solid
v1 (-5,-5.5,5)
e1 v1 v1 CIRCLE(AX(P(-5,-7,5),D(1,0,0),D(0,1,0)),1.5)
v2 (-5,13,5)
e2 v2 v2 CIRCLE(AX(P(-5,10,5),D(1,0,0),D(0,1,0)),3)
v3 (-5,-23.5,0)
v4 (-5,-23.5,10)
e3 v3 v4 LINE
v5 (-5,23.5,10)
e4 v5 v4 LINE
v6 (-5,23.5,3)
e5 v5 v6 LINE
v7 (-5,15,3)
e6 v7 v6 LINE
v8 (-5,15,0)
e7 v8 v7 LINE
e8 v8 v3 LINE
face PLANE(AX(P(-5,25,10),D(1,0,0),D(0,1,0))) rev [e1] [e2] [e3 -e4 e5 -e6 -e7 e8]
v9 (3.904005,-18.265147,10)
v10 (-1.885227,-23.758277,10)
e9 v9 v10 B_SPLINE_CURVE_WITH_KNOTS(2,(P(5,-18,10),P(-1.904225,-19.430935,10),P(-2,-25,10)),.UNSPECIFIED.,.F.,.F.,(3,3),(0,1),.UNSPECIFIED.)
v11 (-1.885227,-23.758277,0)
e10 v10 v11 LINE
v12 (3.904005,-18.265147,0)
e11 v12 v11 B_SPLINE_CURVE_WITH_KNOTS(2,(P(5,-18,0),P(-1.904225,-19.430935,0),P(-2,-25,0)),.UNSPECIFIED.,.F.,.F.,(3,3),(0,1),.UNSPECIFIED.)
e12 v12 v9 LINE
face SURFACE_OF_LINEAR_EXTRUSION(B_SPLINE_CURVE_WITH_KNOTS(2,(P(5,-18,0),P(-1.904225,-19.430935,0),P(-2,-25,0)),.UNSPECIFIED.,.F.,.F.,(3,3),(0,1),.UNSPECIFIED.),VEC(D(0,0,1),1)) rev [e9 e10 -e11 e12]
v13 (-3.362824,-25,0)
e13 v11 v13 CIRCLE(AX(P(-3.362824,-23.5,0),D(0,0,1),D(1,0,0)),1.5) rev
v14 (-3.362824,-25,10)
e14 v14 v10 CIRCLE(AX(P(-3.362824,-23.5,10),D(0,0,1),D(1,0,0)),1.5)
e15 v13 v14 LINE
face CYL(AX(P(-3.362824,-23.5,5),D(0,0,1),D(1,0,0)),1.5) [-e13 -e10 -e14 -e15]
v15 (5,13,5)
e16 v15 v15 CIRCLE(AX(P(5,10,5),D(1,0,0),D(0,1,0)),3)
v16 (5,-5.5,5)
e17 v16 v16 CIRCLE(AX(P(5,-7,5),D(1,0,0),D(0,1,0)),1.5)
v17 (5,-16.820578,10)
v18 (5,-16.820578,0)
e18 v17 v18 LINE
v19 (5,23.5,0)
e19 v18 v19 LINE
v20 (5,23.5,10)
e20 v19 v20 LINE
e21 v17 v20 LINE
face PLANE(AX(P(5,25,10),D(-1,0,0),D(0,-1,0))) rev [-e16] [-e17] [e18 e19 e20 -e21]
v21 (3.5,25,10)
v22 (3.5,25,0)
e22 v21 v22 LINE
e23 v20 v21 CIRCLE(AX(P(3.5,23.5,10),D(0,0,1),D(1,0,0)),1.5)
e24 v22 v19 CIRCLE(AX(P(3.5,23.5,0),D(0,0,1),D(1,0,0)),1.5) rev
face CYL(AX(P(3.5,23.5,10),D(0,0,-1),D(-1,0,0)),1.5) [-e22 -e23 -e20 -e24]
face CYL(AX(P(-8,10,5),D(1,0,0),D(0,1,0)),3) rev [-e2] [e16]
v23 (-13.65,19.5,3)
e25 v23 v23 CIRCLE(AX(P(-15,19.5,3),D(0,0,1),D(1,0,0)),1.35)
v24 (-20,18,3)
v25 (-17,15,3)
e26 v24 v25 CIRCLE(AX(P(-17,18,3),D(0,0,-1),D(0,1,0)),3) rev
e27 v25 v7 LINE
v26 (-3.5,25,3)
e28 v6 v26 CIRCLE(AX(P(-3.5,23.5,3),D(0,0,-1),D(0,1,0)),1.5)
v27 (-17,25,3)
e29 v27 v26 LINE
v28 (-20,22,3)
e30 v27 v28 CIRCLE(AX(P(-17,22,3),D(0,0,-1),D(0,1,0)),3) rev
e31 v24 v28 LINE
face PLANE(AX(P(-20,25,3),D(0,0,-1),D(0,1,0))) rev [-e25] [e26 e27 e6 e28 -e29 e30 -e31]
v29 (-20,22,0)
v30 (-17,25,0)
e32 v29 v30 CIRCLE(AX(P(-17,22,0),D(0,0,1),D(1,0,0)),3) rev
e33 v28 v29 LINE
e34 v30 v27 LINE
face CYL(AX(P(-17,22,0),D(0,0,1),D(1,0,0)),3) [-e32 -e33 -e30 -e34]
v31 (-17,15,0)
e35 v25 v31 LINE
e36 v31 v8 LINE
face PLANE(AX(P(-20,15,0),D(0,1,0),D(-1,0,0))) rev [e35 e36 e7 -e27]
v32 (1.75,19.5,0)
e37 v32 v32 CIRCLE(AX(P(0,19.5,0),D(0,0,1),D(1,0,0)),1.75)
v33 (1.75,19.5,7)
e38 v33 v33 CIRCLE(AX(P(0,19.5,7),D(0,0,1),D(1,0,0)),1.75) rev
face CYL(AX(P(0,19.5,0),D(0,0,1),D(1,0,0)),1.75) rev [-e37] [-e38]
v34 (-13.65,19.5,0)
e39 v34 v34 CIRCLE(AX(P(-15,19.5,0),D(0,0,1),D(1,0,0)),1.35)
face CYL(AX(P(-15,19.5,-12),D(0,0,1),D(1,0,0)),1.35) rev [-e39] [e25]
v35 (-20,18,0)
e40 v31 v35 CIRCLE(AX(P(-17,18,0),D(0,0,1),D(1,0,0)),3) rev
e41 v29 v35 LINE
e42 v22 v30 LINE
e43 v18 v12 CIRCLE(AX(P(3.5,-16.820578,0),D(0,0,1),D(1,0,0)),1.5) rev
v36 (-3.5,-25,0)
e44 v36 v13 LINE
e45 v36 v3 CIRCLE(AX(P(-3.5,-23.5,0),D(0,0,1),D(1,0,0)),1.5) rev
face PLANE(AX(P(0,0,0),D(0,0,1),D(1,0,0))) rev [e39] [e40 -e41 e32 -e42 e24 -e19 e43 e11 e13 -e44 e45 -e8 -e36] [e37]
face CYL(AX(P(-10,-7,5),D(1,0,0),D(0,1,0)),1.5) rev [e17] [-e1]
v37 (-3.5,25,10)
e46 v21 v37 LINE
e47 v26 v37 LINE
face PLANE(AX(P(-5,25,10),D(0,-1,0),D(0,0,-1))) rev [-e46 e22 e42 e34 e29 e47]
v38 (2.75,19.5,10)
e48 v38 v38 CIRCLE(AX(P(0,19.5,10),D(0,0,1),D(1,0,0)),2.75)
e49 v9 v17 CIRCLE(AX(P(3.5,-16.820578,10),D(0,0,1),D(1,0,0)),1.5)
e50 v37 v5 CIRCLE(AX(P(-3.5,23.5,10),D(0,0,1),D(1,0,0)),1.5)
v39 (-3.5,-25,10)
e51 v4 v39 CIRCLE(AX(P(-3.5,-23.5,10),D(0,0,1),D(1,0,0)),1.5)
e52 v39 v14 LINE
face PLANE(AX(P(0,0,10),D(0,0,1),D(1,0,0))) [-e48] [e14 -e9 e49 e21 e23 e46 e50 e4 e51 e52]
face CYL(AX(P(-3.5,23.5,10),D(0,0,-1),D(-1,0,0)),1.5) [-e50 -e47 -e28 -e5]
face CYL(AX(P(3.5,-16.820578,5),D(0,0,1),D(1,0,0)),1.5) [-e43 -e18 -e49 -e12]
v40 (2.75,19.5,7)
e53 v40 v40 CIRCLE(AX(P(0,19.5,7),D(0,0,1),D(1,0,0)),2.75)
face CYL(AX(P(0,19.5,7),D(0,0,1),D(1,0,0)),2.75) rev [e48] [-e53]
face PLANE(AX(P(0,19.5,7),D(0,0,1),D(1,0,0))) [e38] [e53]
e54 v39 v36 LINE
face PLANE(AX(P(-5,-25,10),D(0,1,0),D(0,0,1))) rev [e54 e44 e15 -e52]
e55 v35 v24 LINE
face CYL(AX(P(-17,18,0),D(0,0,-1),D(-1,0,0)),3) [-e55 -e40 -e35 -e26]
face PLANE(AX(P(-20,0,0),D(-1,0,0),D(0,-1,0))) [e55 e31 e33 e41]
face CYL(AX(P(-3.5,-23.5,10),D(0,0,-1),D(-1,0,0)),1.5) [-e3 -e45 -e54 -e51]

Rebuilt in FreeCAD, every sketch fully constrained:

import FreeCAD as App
import Part
import Sketcher
Q = App.Units.Quantity


def edges_at(feature, points):
    """Names of the edges that pass closest to the given points."""
    edges = feature.Shape.Edges
    near = lambda p: min(range(len(edges)), key=lambda i: edges[i].distToShape(Part.Vertex(*p))[0])
    return sorted({f"Edge{near(p) + 1}" for p in points})

doc = App.newDocument("Part")
body = doc.addObject("PartDesign::Body", "Body")

sketch1 = doc.addObject("Sketcher::SketchObject", "Sketch")
body.addObject(sketch1)
sketch1.AttachmentSupport = (doc.XY_Plane, [""])
sketch1.MapMode = "FlatFace"
sketch1.addGeometry([
    Part.LineSegment(App.Vector(-5, 25, 0), App.Vector(-5, -25, 0)),
    Part.LineSegment(App.Vector(-5, -25, 0), App.Vector(5, -25, 0)),
    Part.LineSegment(App.Vector(5, -25, 0), App.Vector(5, 25, 0)),
    Part.LineSegment(App.Vector(5, 25, 0), App.Vector(-5, 25, 0)),
], False)
sketch1.addConstraint([
    Sketcher.Constraint("Coincident", 0, 2, 1, 1),
    Sketcher.Constraint("Coincident", 1, 2, 2, 1),
    Sketcher.Constraint("Coincident", 2, 2, 3, 1),
    Sketcher.Constraint("Coincident", 3, 2, 0, 1),
    Sketcher.Constraint("Vertical", 0),
    Sketcher.Constraint("Horizontal", 1),
    Sketcher.Constraint("Vertical", 2),
    Sketcher.Constraint("Horizontal", 3),
    Sketcher.Constraint("Symmetric", 0, 2, 2, 2, -1, 1),
    Sketcher.Constraint("DistanceX", 1, 1, 1, 2, Q("10 mm")),
    Sketcher.Constraint("DistanceY", 0, 2, 0, 1, Q("50 mm")),
])
pad1 = doc.addObject("PartDesign::Pad", "Pad")
body.addObject(pad1)
pad1.Profile = sketch1
pad1.Length = 10

sketch2 = doc.addObject("Sketcher::SketchObject", "Sketch001")
body.addObject(sketch2)
sketch2.AttachmentSupport = (doc.XY_Plane, [""])
sketch2.MapMode = "FlatFace"
sketch2.AttachmentOffset = App.Placement(App.Vector(0, 0, 10), App.Rotation())
sketch2.addGeometry(Part.Circle(App.Vector(0, 19.5, 0), App.Vector(0, 0, 1), 1.8), False)
sketch2.addConstraint([
    Sketcher.Constraint("PointOnObject", 0, 3, -2),
    Sketcher.Constraint("Diameter", 0, Q("3.5 mm")),
    Sketcher.Constraint("DistanceY", -1, 1, 0, 3, Q("19.5 mm")),
])
pocket1 = doc.addObject("PartDesign::Pocket", "Pocket")
body.addObject(pocket1)
pocket1.Profile = sketch2
pocket1.Length = 10

sketch3 = doc.addObject("Sketcher::SketchObject", "Sketch002")
body.addObject(sketch3)
sketch3.AttachmentSupport = (doc.XY_Plane, [""])
sketch3.MapMode = "FlatFace"
sketch3.AttachmentOffset = App.Placement(App.Vector(0, 0, 10), App.Rotation())
sketch3.addGeometry([
    Part.LineSegment(App.Vector(5, -25, 0), App.Vector(5, -18, 0)),
    Part.BSplineCurve([App.Vector(-2, -25, 0), App.Vector(-1.904225, -19.430935, 0), App.Vector(5, -18, 0)], [3, 3], [0, 1], False, 2, [1, 1, 1], False),
    Part.LineSegment(App.Vector(-2, -25, 0), App.Vector(5, -25, 0)),
], False)
sketch3.addConstraint([
    Sketcher.Constraint("Block", 1),
    Sketcher.Constraint("Coincident", 0, 2, 1, 2),
    Sketcher.Constraint("Coincident", 1, 1, 2, 1),
    Sketcher.Constraint("Coincident", 2, 2, 0, 1),
    Sketcher.Constraint("Vertical", 0),
    Sketcher.Constraint("Horizontal", 2),
])
pocket2 = doc.addObject("PartDesign::Pocket", "Pocket001")
body.addObject(pocket2)
pocket2.Profile = sketch3
pocket2.Length = 10
doc.recompute()

fillet = doc.addObject("PartDesign::Fillet", "Fillet")
body.addObject(fillet)
fillet.Base = (pocket2, edges_at(pocket2, [
    (5, -18, 5),
    (-2, -25, 5),
    (-5, -25, 5),
    (5, 25, 5),
]))
fillet.Radius = 1.5

sketch4 = doc.addObject("Sketcher::SketchObject", "Sketch003")
body.addObject(sketch4)
sketch4.AttachmentSupport = (doc.XY_Plane, [""])
sketch4.MapMode = "FlatFace"
sketch4.AttachmentOffset = App.Placement(App.Vector(0, 0, 10), App.Rotation())
sketch4.addGeometry(Part.Circle(App.Vector(0, 19.5, 0), App.Vector(0, 0, 1), 2.8), False)
sketch4.addConstraint([
    Sketcher.Constraint("PointOnObject", 0, 3, -2),
    Sketcher.Constraint("Diameter", 0, Q("5.5 mm")),
    Sketcher.Constraint("DistanceY", -1, 1, 0, 3, Q("19.5 mm")),
])
pocket3 = doc.addObject("PartDesign::Pocket", "Pocket002")
body.addObject(pocket3)
pocket3.Profile = sketch4
pocket3.Length = 3

sketch5 = doc.addObject("Sketcher::SketchObject", "Sketch004")
body.addObject(sketch5)
sketch5.AttachmentSupport = (doc.YZ_Plane, [""])
sketch5.MapMode = "FlatFace"
sketch5.AttachmentOffset = App.Placement(App.Vector(0, 0, 5), App.Rotation())
sketch5.addGeometry(Part.Circle(App.Vector(10, 5, 0), App.Vector(0, 0, 1), 3), False)
sketch5.addConstraint([
    Sketcher.Constraint("Diameter", 0, Q("6 mm")),
    Sketcher.Constraint("DistanceX", -1, 1, 0, 3, Q("10 mm")),
    Sketcher.Constraint("DistanceY", -1, 1, 0, 3, Q("5 mm")),
])
pocket4 = doc.addObject("PartDesign::Pocket", "Pocket003")
body.addObject(pocket4)
pocket4.Profile = sketch5
pocket4.Length = 13

sketch6 = doc.addObject("Sketcher::SketchObject", "Sketch005")
body.addObject(sketch6)
sketch6.AttachmentSupport = (doc.YZ_Plane, [""])
sketch6.MapMode = "FlatFace"
sketch6.AttachmentOffset = App.Placement(App.Vector(0, 0, -5), App.Rotation())
sketch6.addGeometry([
    Part.LineSegment(App.Vector(25, 0, 0), App.Vector(15, 0, 0)),
    Part.LineSegment(App.Vector(15, 0, 0), App.Vector(15, 3, 0)),
    Part.LineSegment(App.Vector(15, 3, 0), App.Vector(25, 3, 0)),
    Part.LineSegment(App.Vector(25, 3, 0), App.Vector(25, 0, 0)),
], False)
sketch6.addConstraint([
    Sketcher.Constraint("Coincident", 0, 2, 1, 1),
    Sketcher.Constraint("Coincident", 1, 2, 2, 1),
    Sketcher.Constraint("Coincident", 2, 2, 3, 1),
    Sketcher.Constraint("Coincident", 3, 2, 0, 1),
    Sketcher.Constraint("Horizontal", 0),
    Sketcher.Constraint("Vertical", 1),
    Sketcher.Constraint("Horizontal", 2),
    Sketcher.Constraint("Vertical", 3),
    Sketcher.Constraint("PointOnObject", 0, 2, -1),
    Sketcher.Constraint("DistanceX", 0, 2, 0, 1, Q("10 mm")),
    Sketcher.Constraint("DistanceY", 1, 1, 1, 2, Q("3 mm")),
    Sketcher.Constraint("DistanceX", -1, 1, 0, 2, Q("15 mm")),
])
pad2 = doc.addObject("PartDesign::Pad", "Pad001")
body.addObject(pad2)
pad2.Profile = sketch6
pad2.Length = 15
pad2.Reversed = True
doc.recompute()

fillet2 = doc.addObject("PartDesign::Fillet", "Fillet001")
body.addObject(fillet2)
fillet2.Base = (pad2, edges_at(pad2, [(-20, 15, 1.5), (-20, 25, 1.5)]))
fillet2.Radius = 3
doc.recompute()

fillet3 = doc.addObject("PartDesign::Fillet", "Fillet002")
body.addObject(fillet3)
fillet3.Base = (fillet2, edges_at(fillet2, [(-5, 25, 6.5)]))
fillet3.Radius = 1.5

sketch7 = doc.addObject("Sketcher::SketchObject", "Sketch006")
body.addObject(sketch7)
sketch7.AttachmentSupport = (doc.XY_Plane, [""])
sketch7.MapMode = "FlatFace"
sketch7.AttachmentOffset = App.Placement(App.Vector(0, 0, 3), App.Rotation())
sketch7.addGeometry(Part.Circle(App.Vector(-15, 19.5, 0), App.Vector(0, 0, 1), 1.4), False)
sketch7.addConstraint([
    Sketcher.Constraint("Diameter", 0, Q("2.7 mm")),
    Sketcher.Constraint("DistanceX", 0, 3, -1, 1, Q("15 mm")),
    Sketcher.Constraint("DistanceY", -1, 1, 0, 3, Q("19.5 mm")),
])
pocket5 = doc.addObject("PartDesign::Pocket", "Pocket004")
body.addObject(pocket5)
pocket5.Profile = sketch7
pocket5.Length = 15

sketch8 = doc.addObject("Sketcher::SketchObject", "Sketch007")
body.addObject(sketch8)
sketch8.AttachmentSupport = (doc.YZ_Plane, [""])
sketch8.MapMode = "FlatFace"
sketch8.AttachmentOffset = App.Placement(App.Vector(0, 0, 5), App.Rotation())
sketch8.addGeometry(Part.Circle(App.Vector(-7, 5, 0), App.Vector(0, 0, 1), 1.5), False)
sketch8.addConstraint([
    Sketcher.Constraint("Diameter", 0, Q("3 mm")),
    Sketcher.Constraint("DistanceX", 0, 3, -1, 1, Q("7 mm")),
    Sketcher.Constraint("DistanceY", -1, 1, 0, 3, Q("5 mm")),
])
pocket6 = doc.addObject("PartDesign::Pocket", "Pocket005")
body.addObject(pocket6)
pocket6.Profile = sketch8
pocket6.Length = 15

doc.recompute()
